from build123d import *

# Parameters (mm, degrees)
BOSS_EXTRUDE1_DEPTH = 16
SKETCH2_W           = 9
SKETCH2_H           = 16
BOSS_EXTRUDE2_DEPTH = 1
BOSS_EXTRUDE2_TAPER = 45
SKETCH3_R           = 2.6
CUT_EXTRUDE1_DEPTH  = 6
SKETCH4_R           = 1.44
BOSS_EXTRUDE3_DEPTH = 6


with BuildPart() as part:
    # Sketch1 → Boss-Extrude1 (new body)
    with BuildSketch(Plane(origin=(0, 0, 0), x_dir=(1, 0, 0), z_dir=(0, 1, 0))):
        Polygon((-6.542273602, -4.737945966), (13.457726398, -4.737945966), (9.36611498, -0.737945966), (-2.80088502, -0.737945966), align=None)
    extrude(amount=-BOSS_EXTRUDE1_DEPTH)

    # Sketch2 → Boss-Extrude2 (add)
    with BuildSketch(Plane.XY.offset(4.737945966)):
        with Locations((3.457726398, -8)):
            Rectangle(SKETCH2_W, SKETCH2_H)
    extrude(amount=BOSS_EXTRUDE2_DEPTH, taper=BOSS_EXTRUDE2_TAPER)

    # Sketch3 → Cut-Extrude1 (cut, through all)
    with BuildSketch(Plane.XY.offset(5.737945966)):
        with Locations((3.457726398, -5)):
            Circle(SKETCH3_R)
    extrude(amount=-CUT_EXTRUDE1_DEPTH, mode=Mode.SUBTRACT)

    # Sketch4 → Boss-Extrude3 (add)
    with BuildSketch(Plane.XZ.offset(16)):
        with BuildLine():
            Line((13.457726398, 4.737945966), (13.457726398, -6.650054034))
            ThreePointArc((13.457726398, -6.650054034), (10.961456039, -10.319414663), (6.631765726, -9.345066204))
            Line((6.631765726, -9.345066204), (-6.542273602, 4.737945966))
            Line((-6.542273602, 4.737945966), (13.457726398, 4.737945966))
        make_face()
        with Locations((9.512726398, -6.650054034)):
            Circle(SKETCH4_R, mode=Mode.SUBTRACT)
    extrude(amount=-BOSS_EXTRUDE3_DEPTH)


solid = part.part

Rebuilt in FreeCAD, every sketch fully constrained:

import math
import FreeCAD as App
import Part
import Sketcher
Q = App.Units.Quantity


def add_polygon(sketch, points):
    """Adds a closed chain of lines whose ends are joined by coincident constraints."""
    first, n = sketch.GeometryCount, len(points)
    for a, b in zip(points, points[1:] + points[:1]):
        sketch.addGeometry(Part.LineSegment(App.Vector(*a, 0), App.Vector(*b, 0)), False)
    for i in range(n):
        sketch.addConstraint(Sketcher.Constraint("Coincident", first + i, 2, first + (i + 1) % n, 1))

doc = App.newDocument("Part")
body = doc.addObject("PartDesign::Body", "Body")

# Sketch on XZ plane
sketch1 = body.newObject("Sketcher::SketchObject", "Sketch")
sketch1.AttachmentSupport = (doc.getObject("XZ_Plane"), [""])
sketch1.MapMode = "FlatFace"
add_polygon(sketch1, [(-7, 5), (13, 5), (9, 1), (-3, 1)])  # lines 0-3
sketch1.addConstraint([
    Sketcher.Constraint("Horizontal", 0),
    Sketcher.Constraint("Horizontal", 2),
    Sketcher.Constraint("DistanceX", 0, 1, 0, 2, Q("20 mm")),
    Sketcher.Constraint("DistanceY", 1, 2, 0, 2, Q("4 mm")),
    Sketcher.Constraint("DistanceX", 2, 2, 2, 1, Q("12.167 mm")),
    Sketcher.Constraint("Distance", 1, Q("5.722 mm")),
    Sketcher.Constraint("DistanceX", -1, 1, 0, 2, Q("13.457726 mm")),
    Sketcher.Constraint("DistanceY", -1, 1, 0, 2, Q("4.737946 mm")),
])
pad1 = body.newObject("PartDesign::Pad", "Pad")
pad1.Profile = sketch1
pad1.Length = 16

# Sketch on XY plane
sketch2 = body.newObject("Sketcher::SketchObject", "Sketch001")
sketch2.AttachmentSupport = (doc.getObject("XY_Plane"), [""])
sketch2.MapMode = "FlatFace"
sketch2.AttachmentOffset = App.Placement(App.Vector(0, 0, 4.737946), App.Rotation())
add_polygon(sketch2, [(-1, 0), (-1, -16), (8, -16), (8, 0)])  # lines 0-3
sketch2.addConstraint([
    Sketcher.Constraint("Vertical", 0),
    Sketcher.Constraint("Horizontal", 1),
    Sketcher.Constraint("Vertical", 2),
    Sketcher.Constraint("Horizontal", 3),
    Sketcher.Constraint("PointOnObject", 2, 2, -1),
    Sketcher.Constraint("DistanceX", 1, 1, 1, 2, Q("9 mm")),
    Sketcher.Constraint("DistanceY", 0, 2, 0, 1, Q("16 mm")),
    Sketcher.Constraint("DistanceX", 0, 2, -1, 1, Q("1.042274 mm")),
])
pad2 = body.newObject("PartDesign::Pad", "Pad001")
pad2.Profile = sketch2
pad2.Length = 1
pad2.TaperAngle = -45

# Sketch on XY plane
sketch3 = body.newObject("Sketcher::SketchObject", "Sketch002")
sketch3.AttachmentSupport = (doc.getObject("XY_Plane"), [""])
sketch3.MapMode = "FlatFace"
sketch3.AttachmentOffset = App.Placement(App.Vector(0, 0, 5.737946), App.Rotation())
sketch3.addGeometry(Part.Circle(App.Vector(3.5, -5, 0), App.Vector(0, 0, 1), 2.6), False)
sketch3.addConstraint([
    Sketcher.Constraint("Diameter", 0, Q("5.2 mm")),
    Sketcher.Constraint("DistanceY", 0, 3, -1, 1, Q("5 mm")),
    Sketcher.Constraint("DistanceX", -1, 1, 0, 3, Q("3.457726 mm")),
])
pocket1 = body.newObject("PartDesign::Pocket", "Pocket")
pocket1.Profile = sketch3
pocket1.Type = "ThroughAll"

# Sketch on XZ plane
sketch4 = body.newObject("Sketcher::SketchObject", "Sketch003")
sketch4.AttachmentSupport = (doc.getObject("XZ_Plane"), [""])
sketch4.MapMode = "FlatFace"
sketch4.AttachmentOffset = App.Placement(App.Vector(0, 0, 16), App.Rotation())
sketch4.addGeometry([
    Part.LineSegment(App.Vector(13.5, -6.7, 0), App.Vector(13.5, 4.7, 0)),  # 0
    Part.LineSegment(App.Vector(13.5, 4.7, 0), App.Vector(-6.5, 4.7, 0)),  # 1
    Part.LineSegment(App.Vector(-6.5, 4.7, 0), App.Vector(6.6, -9.3, 0)),  # 2
    Part.ArcOfCircle(Part.Circle(App.Vector(9.5, -6.7, 0), App.Vector(0, 0, 1), 3.9), math.radians(-137), math.radians(0)),  # 3
    Part.Circle(App.Vector(9.5, -6.7, 0), App.Vector(0, 0, 1), 1.4),  # 4
], False)
sketch4.addConstraint([
    Sketcher.Constraint("Coincident", 0, 2, 1, 1),
    Sketcher.Constraint("Coincident", 1, 2, 2, 1),
    Sketcher.Constraint("Tangent", 2, 2, 3, 1),
    Sketcher.Constraint("Tangent", 3, 2, 0, 1),
    Sketcher.Constraint("Vertical", 0),
    Sketcher.Constraint("Horizontal", 1),
    Sketcher.Constraint("Coincident", 4, 3, 3, 3),
    Sketcher.Constraint("Diameter", 4, Q("2.88 mm")),
    Sketcher.Constraint("DistanceX", 1, 2, 1, 1, Q("20 mm")),
    Sketcher.Constraint("Radius", 3, Q("3.945 mm")),
    Sketcher.Constraint("Angle", 2, Q("-46.910002 deg")),
    Sketcher.Constraint("DistanceX", -1, 1, 3, 3, Q("9.512726 mm")),
    Sketcher.Constraint("DistanceY", 3, 3, -1, 1, Q("6.650054 mm")),
])
pad3 = body.newObject("PartDesign::Pad", "Pad002")
pad3.Profile = sketch4
pad3.Length = 6
pad3.Reversed = True

doc.recompute()
